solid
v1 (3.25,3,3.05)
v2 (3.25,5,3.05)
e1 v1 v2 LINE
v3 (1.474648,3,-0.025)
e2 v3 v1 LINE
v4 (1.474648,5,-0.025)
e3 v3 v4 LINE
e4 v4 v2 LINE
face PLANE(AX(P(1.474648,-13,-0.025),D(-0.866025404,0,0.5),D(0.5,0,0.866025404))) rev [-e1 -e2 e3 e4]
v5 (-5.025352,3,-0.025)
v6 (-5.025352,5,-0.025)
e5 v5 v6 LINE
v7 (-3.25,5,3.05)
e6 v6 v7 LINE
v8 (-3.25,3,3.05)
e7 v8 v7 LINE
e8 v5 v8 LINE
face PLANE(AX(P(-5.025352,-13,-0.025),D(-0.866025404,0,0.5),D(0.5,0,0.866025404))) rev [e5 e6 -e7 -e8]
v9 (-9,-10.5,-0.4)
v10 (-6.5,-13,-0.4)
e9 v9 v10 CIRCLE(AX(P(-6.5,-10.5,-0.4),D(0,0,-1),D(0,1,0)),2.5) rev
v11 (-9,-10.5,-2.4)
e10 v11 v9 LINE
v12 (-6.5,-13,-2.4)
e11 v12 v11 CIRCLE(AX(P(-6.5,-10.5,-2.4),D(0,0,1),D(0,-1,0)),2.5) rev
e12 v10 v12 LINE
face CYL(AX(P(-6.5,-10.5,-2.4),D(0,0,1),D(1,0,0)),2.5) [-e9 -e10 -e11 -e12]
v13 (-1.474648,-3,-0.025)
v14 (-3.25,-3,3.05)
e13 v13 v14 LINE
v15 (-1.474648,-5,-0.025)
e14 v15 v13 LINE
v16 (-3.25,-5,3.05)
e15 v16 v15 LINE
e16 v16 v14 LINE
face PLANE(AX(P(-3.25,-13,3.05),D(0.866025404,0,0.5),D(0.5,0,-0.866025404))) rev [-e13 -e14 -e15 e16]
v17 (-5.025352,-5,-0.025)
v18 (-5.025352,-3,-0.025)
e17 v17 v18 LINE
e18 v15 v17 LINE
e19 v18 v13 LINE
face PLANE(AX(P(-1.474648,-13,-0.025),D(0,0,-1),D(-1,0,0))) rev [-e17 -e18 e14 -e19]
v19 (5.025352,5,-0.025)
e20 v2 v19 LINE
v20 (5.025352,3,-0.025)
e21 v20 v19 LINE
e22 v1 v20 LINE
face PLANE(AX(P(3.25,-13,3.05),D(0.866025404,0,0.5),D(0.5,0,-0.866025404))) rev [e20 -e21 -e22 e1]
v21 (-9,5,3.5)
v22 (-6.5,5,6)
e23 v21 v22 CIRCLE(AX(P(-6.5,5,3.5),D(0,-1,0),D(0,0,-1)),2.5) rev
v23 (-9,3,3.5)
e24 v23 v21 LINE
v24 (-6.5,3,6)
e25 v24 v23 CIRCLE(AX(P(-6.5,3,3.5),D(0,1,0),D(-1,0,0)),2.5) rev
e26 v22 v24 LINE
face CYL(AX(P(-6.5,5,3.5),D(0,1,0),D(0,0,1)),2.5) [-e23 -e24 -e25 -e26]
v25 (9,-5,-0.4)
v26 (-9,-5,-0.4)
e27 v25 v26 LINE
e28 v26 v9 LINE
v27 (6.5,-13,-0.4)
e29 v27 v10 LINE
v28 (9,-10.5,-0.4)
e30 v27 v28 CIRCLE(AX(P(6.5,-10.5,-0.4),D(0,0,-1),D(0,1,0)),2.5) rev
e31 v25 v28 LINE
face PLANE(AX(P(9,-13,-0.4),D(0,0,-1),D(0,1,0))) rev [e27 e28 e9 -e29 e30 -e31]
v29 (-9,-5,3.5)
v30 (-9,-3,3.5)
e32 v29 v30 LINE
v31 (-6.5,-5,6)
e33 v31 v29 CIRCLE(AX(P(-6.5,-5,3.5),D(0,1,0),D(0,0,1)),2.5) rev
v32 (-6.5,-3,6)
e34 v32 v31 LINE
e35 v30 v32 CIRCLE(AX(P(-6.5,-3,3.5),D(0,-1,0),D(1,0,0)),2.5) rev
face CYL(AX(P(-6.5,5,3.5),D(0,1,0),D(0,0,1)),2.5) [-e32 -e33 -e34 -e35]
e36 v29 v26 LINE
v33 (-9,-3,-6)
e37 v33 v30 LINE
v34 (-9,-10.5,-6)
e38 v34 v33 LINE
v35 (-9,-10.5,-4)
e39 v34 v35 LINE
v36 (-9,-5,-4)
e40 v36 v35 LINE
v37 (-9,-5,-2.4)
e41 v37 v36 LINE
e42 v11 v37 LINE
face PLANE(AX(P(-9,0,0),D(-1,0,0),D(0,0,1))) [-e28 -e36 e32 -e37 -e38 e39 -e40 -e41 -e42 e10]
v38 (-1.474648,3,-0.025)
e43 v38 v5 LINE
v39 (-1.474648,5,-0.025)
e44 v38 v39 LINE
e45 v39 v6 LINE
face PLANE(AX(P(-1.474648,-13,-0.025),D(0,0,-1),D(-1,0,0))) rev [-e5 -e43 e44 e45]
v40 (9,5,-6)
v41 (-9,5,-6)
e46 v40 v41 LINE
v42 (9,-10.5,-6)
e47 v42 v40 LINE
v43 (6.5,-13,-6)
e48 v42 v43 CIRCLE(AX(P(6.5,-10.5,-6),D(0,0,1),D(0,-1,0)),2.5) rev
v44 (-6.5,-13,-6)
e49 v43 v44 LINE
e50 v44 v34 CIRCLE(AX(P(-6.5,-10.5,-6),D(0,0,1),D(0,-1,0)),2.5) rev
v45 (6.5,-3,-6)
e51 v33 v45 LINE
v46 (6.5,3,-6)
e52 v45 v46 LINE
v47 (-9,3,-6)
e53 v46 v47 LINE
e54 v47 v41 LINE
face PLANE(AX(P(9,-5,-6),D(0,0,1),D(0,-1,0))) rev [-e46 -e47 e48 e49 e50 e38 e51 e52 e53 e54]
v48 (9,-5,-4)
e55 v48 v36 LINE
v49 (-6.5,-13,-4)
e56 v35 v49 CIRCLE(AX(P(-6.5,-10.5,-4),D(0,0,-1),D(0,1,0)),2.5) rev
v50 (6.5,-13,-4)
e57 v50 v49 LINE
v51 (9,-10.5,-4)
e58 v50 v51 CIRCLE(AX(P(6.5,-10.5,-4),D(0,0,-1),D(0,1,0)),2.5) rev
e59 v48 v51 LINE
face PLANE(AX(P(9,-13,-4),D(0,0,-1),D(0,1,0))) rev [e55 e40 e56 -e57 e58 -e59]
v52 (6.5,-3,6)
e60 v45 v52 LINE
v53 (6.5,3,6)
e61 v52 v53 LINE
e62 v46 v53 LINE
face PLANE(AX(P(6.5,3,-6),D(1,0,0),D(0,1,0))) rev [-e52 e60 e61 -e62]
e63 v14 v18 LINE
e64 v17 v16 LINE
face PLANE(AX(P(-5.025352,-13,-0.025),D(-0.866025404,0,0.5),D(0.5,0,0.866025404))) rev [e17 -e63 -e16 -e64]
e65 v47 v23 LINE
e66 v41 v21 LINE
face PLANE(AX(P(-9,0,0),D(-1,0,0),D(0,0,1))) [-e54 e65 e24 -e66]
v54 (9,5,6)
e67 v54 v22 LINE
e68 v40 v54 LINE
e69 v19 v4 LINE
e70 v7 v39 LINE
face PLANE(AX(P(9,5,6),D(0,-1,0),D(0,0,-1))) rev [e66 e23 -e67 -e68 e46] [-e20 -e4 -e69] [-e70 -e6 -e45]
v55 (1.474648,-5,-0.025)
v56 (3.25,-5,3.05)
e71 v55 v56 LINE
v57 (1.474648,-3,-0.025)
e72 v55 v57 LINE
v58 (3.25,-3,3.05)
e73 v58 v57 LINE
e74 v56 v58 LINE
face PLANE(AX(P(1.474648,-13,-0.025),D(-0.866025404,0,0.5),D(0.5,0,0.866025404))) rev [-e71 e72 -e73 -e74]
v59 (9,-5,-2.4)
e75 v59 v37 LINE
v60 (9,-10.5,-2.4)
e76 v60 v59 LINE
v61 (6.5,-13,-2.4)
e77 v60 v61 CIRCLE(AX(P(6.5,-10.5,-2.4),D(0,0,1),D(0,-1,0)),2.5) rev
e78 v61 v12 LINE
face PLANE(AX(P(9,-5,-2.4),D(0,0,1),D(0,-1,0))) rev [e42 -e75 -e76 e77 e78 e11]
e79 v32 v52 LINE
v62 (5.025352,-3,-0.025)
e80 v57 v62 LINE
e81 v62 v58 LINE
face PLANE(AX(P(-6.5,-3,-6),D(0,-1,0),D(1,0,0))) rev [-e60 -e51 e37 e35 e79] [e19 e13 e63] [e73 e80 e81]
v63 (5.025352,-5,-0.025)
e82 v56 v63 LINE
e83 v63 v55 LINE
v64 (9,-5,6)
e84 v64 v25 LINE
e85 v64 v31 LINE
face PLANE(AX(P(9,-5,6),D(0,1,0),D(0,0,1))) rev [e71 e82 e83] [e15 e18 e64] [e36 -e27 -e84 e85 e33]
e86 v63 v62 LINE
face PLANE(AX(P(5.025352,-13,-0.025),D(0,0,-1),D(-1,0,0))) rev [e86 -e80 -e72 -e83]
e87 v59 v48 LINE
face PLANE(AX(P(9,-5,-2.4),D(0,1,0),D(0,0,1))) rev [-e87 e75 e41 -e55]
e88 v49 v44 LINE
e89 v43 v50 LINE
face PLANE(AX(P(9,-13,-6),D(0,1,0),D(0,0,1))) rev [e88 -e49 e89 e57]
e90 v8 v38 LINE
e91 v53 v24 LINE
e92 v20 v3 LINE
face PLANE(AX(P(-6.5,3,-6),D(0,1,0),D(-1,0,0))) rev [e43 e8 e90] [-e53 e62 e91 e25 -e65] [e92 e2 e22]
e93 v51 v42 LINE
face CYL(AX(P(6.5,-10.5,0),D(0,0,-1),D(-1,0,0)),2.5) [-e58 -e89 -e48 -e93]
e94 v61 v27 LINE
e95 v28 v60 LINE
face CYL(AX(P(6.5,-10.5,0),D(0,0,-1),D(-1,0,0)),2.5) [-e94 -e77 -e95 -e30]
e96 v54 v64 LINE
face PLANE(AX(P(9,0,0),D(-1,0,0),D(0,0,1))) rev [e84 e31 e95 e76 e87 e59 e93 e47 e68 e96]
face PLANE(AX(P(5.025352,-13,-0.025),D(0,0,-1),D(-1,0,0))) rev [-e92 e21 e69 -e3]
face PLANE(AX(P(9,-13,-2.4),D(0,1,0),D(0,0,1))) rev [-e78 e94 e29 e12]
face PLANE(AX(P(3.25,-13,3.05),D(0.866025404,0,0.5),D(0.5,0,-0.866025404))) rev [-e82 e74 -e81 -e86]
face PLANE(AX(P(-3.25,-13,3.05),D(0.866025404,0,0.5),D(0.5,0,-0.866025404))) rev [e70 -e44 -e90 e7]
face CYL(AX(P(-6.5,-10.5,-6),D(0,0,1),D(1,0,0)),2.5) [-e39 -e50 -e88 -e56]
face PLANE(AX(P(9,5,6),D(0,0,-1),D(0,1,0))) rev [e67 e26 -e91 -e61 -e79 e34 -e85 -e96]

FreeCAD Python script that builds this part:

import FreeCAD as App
import Part
import Sketcher
from FreeCAD import Vector
Q = App.Units.Quantity


def edges_at(feature, points):
    """Names of the edges that pass closest to the given points."""
    edges = feature.Shape.Edges
    near = lambda p: min(range(len(edges)), key=lambda i: edges[i].distToShape(Part.Vertex(*p))[0])
    return sorted({f"Edge{near(p) + 1}" for p in points})


def add_polygon(sketch, points):
    """Adds a closed chain of lines whose ends are joined by coincident constraints."""
    first, n = sketch.GeometryCount, len(points)
    for a, b in zip(points, points[1:] + points[:1]):
        sketch.addGeometry(Part.LineSegment(App.Vector(*a, 0), App.Vector(*b, 0)), False)
    for i in range(n):
        sketch.addConstraint(Sketcher.Constraint("Coincident", first + i, 2, first + (i + 1) % n, 1))

doc = App.newDocument("Part")
params = doc.addObject("Spreadsheet::Sheet", "Params")
for row, (alias, value) in enumerate([
    ("sketch1_width", "18 mm"),
    ("sketch1_width2", "10 mm"),
    ("sketch1_height", "12 mm"),
    ("sketch1_height2", "2 mm"),
    ("sketch1_height3", "6.4 mm"),
    ("pad1_length", "18 mm"),
    ("sketch2_height", "6 mm"),
    ("sketch2_width", "15.5 mm"),
    ("fillet_radius", "2.5 mm"),
], start=1):
    params.set(f"A{row}", alias)
    params.set(f"B{row}", "=" + value)
    params.setAlias(f"B{row}", alias)

body = doc.addObject("PartDesign::Body", "Body")

sketch1 = body.newObject("Sketcher::SketchObject", "Sketch")
sketch1.AttachmentSupport = (doc.getObject("YZ_Plane"), [""])
sketch1.MapMode = "FlatFace"
add_polygon(sketch1, [(-13, -6), (5, -6), (5, 6), (-5, 6), (-5, -0.4), (-13, -0.4), (-13, -2.4), (-5, -2.4), (-5, -4), (-13, -4)])
sketch1.addConstraint([
    Sketcher.Constraint("Horizontal", 0),
    Sketcher.Constraint("Vertical", 1),
    Sketcher.Constraint("Horizontal", 2),
    Sketcher.Constraint("Vertical", 3),
    Sketcher.Constraint("Horizontal", 4),
    Sketcher.Constraint("Vertical", 5),
    Sketcher.Constraint("Horizontal", 6),
    Sketcher.Constraint("Vertical", 7),
    Sketcher.Constraint("Horizontal", 8),
    Sketcher.Constraint("Vertical", 9),
    Sketcher.Constraint("Symmetric", 0, 2, 2, 2, -1, 1),
    Sketcher.Constraint("Vertical", 3, 2, 6, 2),
    Sketcher.Constraint("Vertical", 5, 2, 8, 2),
    Sketcher.Constraint("Equal", 5, 9),
    Sketcher.Constraint("DistanceX", 0, 1, 0, 2, 18.0),
    Sketcher.Constraint("DistanceX", 2, 2, 2, 1, 10.0),
    Sketcher.Constraint("DistanceY", 1, 1, 1, 2, 12.0),
    Sketcher.Constraint("DistanceY", 5, 2, 5, 1, 2.0),
    Sketcher.Constraint("DistanceY", 3, 2, 3, 1, 6.4),
])
sketch1.setExpression("Constraints[24]", "Params.sketch1_width")
sketch1.setExpression("Constraints[25]", "Params.sketch1_width2")
sketch1.setExpression("Constraints[26]", "Params.sketch1_height")
sketch1.setExpression("Constraints[27]", "Params.sketch1_height2")
sketch1.setExpression("Constraints[28]", "Params.sketch1_height3")
pad1 = body.newObject("PartDesign::Pad", "Pad")
pad1.Profile = sketch1
pad1.setExpression("Length", "Params.pad1_length")
pad1.Midplane = True

sketch2 = body.newObject("Sketcher::SketchObject", "Sketch001")
sketch2.AttachmentSupport = (doc.getObject("XY_Plane"), [""])
sketch2.MapMode = "FlatFace"
sketch2.AttachmentOffset = App.Placement(Vector(0, 0, 6), App.Rotation())
add_polygon(sketch2, [(-9, 3), (-9, -3), (6.5, -3), (6.5, 3)])
sketch2.addConstraint([
    Sketcher.Constraint("Vertical", 0),
    Sketcher.Constraint("Horizontal", 1),
    Sketcher.Constraint("Vertical", 2),
    Sketcher.Constraint("Horizontal", 3),
    Sketcher.Constraint("DistanceY", 0, 2, 0, 1, 6.0),
    Sketcher.Constraint("DistanceX", 1, 1, 1, 2, 15.5),
    Sketcher.Constraint("DistanceX", 0, 2, -1, 1, 9.0),
    Sketcher.Constraint("DistanceY", 0, 2, -1, 1, 3.0),
])
sketch2.setExpression("Constraints[8]", "Params.sketch2_height")
sketch2.setExpression("Constraints[9]", "Params.sketch2_width")
pocket1 = body.newObject("PartDesign::Pocket", "Pocket")
pocket1.Profile = sketch2
pocket1.Type = "ThroughAll"

sketch3 = body.newObject("Sketcher::SketchObject", "Sketch002")
sketch3.AttachmentSupport = (doc.getObject("XZ_Plane"), [""])
sketch3.MapMode = "FlatFace"
sketch3.AttachmentOffset = App.Placement(Vector(0, 0, -5), App.Rotation())
add_polygon(sketch3, [(3.25, 3.05), (5.025352, -0.025), (1.474648, -0.025)])
add_polygon(sketch3, [(-1.474648, -0.025), (-5.025352, -0.025), (-3.25, 3.05)])
sketch3.addConstraint([
    Sketcher.Constraint("Horizontal", 1),
    Sketcher.Constraint("Horizontal", 3),
    Sketcher.Constraint("Symmetric", 0, 2, 3, 2, -2),
    Sketcher.Constraint("Symmetric", 2, 2, 4, 2, -2),
    Sketcher.Constraint("Parallel", 2, 4),
    Sketcher.Constraint("Parallel", 0, 5),
    Sketcher.Constraint("Angle", 0, Q("-60 deg")),
    Sketcher.Constraint("DistanceX", 3, 2, 1, 2, 6.5),
    Sketcher.Constraint("DistanceY", -1, 1, 2, 2, 3.05),
    Sketcher.Constraint("DistanceY", 0, 2, -1, 1, 0.025),
])
pocket2 = body.newObject("PartDesign::Pocket", "Pocket001")
pocket2.Profile = sketch3
pocket2.Type = "ThroughAll"
pocket2.Reversed = True
doc.recompute()

fillet = body.newObject("PartDesign::Fillet", "Fillet")
fillet.Base = (pocket2, edges_at(pocket2, [
    (-9, -13, -5),
    (-9, -13, -1.4),
    (-9, 4, 6),
    (9, -13, -1.4),
    (9, -13, -5),
    (-9, -4, 6),
]))
fillet.setExpression("Radius", "Params.fillet_radius")

doc.recompute()
